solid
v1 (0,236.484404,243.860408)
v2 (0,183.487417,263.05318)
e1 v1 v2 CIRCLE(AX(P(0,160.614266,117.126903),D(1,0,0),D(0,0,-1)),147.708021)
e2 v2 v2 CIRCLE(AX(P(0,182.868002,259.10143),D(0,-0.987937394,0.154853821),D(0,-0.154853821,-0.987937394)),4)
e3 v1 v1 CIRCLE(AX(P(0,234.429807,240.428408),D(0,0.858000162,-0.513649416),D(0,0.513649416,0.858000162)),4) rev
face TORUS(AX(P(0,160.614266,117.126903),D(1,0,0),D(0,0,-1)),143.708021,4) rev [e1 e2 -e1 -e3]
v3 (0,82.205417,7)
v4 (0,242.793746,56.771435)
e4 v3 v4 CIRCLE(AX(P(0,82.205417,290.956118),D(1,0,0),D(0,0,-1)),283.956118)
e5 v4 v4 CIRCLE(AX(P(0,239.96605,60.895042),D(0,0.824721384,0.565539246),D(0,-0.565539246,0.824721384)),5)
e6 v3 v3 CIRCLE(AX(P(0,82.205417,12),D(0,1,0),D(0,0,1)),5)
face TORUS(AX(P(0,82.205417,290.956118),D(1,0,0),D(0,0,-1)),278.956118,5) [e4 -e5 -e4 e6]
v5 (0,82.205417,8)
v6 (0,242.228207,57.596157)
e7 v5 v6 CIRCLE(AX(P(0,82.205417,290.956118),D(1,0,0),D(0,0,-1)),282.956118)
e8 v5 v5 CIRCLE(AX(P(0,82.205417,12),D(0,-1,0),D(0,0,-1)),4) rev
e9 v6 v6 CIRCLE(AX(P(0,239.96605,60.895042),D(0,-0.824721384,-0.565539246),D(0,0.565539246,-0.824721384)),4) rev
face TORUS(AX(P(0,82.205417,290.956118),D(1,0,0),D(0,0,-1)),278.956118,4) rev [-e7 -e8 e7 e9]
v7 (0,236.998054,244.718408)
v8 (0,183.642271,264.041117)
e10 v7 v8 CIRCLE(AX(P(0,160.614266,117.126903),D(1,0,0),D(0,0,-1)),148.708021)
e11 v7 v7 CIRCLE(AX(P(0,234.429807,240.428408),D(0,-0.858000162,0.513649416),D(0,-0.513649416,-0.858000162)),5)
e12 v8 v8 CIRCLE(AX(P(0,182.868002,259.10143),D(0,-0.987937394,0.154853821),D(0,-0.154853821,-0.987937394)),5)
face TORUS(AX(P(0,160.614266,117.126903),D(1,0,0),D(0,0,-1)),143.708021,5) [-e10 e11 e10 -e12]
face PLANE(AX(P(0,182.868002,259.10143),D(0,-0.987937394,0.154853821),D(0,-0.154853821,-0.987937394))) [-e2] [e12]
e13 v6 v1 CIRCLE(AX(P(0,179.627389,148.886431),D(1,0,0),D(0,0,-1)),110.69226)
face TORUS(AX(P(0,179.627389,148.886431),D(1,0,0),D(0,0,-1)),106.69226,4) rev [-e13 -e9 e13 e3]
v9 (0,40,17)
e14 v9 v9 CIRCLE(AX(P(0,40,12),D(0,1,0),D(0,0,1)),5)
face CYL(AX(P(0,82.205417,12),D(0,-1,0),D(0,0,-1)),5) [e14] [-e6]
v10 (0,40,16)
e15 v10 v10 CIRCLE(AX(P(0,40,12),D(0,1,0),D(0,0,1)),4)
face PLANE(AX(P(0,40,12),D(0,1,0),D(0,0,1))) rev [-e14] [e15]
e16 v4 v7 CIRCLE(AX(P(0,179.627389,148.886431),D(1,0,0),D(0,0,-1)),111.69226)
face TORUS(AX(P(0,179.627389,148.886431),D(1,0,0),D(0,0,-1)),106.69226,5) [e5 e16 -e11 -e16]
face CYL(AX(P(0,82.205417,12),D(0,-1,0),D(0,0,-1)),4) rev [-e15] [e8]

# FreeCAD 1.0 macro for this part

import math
import FreeCAD as App
import Part
import Sketcher

V = App.Vector
Q = App.Units.Quantity


def faces_at(feature, points):
    """Names of the faces that lie closest to the given points."""
    faces = feature.Shape.Faces
    near = lambda p: min(range(len(faces)), key=lambda i: faces[i].distToShape(Part.Vertex(*p))[0])
    return sorted({f"Face{near(p) + 1}" for p in points})

doc = App.newDocument("Part")
body = doc.addObject("PartDesign::Body", "Body")

# Sketch on XZ plane
sketch1 = doc.addObject("Sketcher::SketchObject", "Sketch")
body.addObject(sketch1)
sketch1.AttachmentSupport = (doc.XZ_Plane, [""])
sketch1.MapMode = "FlatFace"
sketch1.AttachmentOffset = App.Placement(V(0, 0, -40), App.Rotation())
sketch1.addGeometry(Part.Circle(V(0, 12, 0), V(0, 0, 1), 5), False)
sketch1.addConstraint([
    Sketcher.Constraint("PointOnObject", 0, 3, -2),
    Sketcher.Constraint("Diameter", 0, Q("10 mm")),
    Sketcher.Constraint("DistanceY", -1, 1, 0, 3, Q("12 mm")),
])

# Sketch on YZ plane
sketch2 = doc.addObject("Sketcher::SketchObject", "Sketch001")
body.addObject(sketch2)
sketch2.AttachmentSupport = (doc.YZ_Plane, [""])
sketch2.MapMode = "FlatFace"
sketch2.addGeometry([
    Part.LineSegment(V(40, 12, 0), V(82, 12, 0)),
    Part.ArcOfCircle(Part.Circle(V(82, 291, 0), V(0, 0, 1), 279), math.radians(-90), math.radians(-56)),
    Part.ArcOfCircle(Part.Circle(V(180, 149, 0), V(0, 0, 1), 107), math.radians(-56), math.radians(59)),
    Part.ArcOfCircle(Part.Circle(V(161, 117, 0), V(0, 0, 1), 144), math.radians(59), math.radians(81)),
], False)
sketch2.addConstraint([
    Sketcher.Constraint("Tangent", 0, 2, 1, 1),
    Sketcher.Constraint("Tangent", 1, 2, 2, 1),
    Sketcher.Constraint("Tangent", 2, 2, 3, 1),
    Sketcher.Constraint("Horizontal", 0),
    Sketcher.Constraint("DistanceX", -1, 1, 0, 1, Q("40 mm")),
    Sketcher.Constraint("DistanceY", -1, 1, 0, 1, Q("12 mm")),
    Sketcher.Constraint("Radius", 2, Q("106.69226 mm")),
    Sketcher.Constraint("Radius", 3, Q("143.708021 mm")),
    Sketcher.Constraint("DistanceX", -1, 1, 3, 2, Q("182.868002 mm")),
    Sketcher.Constraint("Radius", 1, Q("278.956118 mm")),
    Sketcher.Constraint("DistanceY", 2, 3, 3, 2, Q("110.214999 mm")),
    Sketcher.Constraint("DistanceX", 0, 1, 0, 2, Q("42.205417 mm")),
    Sketcher.Constraint("DistanceX", -1, 1, 2, 3, Q("179.627389 mm")),
])
doc.recompute()

additivepipe = doc.addObject("PartDesign::AdditivePipe", "AdditivePipe")
body.addObject(additivepipe)
additivepipe.Profile = sketch1
additivepipe.Spine = (sketch2, ["Edge1", "Edge2", "Edge3", "Edge4"])
doc.recompute()

thickness = doc.addObject("PartDesign::Thickness", "Thickness")
body.addObject(thickness)
thickness.Base = (additivepipe, faces_at(additivepipe, [(0, 182.868, 259.101), (0, 40, 12)]))
thickness.Value = 1
thickness.Reversed = True
thickness.Join = "Intersection"

doc.recompute()
